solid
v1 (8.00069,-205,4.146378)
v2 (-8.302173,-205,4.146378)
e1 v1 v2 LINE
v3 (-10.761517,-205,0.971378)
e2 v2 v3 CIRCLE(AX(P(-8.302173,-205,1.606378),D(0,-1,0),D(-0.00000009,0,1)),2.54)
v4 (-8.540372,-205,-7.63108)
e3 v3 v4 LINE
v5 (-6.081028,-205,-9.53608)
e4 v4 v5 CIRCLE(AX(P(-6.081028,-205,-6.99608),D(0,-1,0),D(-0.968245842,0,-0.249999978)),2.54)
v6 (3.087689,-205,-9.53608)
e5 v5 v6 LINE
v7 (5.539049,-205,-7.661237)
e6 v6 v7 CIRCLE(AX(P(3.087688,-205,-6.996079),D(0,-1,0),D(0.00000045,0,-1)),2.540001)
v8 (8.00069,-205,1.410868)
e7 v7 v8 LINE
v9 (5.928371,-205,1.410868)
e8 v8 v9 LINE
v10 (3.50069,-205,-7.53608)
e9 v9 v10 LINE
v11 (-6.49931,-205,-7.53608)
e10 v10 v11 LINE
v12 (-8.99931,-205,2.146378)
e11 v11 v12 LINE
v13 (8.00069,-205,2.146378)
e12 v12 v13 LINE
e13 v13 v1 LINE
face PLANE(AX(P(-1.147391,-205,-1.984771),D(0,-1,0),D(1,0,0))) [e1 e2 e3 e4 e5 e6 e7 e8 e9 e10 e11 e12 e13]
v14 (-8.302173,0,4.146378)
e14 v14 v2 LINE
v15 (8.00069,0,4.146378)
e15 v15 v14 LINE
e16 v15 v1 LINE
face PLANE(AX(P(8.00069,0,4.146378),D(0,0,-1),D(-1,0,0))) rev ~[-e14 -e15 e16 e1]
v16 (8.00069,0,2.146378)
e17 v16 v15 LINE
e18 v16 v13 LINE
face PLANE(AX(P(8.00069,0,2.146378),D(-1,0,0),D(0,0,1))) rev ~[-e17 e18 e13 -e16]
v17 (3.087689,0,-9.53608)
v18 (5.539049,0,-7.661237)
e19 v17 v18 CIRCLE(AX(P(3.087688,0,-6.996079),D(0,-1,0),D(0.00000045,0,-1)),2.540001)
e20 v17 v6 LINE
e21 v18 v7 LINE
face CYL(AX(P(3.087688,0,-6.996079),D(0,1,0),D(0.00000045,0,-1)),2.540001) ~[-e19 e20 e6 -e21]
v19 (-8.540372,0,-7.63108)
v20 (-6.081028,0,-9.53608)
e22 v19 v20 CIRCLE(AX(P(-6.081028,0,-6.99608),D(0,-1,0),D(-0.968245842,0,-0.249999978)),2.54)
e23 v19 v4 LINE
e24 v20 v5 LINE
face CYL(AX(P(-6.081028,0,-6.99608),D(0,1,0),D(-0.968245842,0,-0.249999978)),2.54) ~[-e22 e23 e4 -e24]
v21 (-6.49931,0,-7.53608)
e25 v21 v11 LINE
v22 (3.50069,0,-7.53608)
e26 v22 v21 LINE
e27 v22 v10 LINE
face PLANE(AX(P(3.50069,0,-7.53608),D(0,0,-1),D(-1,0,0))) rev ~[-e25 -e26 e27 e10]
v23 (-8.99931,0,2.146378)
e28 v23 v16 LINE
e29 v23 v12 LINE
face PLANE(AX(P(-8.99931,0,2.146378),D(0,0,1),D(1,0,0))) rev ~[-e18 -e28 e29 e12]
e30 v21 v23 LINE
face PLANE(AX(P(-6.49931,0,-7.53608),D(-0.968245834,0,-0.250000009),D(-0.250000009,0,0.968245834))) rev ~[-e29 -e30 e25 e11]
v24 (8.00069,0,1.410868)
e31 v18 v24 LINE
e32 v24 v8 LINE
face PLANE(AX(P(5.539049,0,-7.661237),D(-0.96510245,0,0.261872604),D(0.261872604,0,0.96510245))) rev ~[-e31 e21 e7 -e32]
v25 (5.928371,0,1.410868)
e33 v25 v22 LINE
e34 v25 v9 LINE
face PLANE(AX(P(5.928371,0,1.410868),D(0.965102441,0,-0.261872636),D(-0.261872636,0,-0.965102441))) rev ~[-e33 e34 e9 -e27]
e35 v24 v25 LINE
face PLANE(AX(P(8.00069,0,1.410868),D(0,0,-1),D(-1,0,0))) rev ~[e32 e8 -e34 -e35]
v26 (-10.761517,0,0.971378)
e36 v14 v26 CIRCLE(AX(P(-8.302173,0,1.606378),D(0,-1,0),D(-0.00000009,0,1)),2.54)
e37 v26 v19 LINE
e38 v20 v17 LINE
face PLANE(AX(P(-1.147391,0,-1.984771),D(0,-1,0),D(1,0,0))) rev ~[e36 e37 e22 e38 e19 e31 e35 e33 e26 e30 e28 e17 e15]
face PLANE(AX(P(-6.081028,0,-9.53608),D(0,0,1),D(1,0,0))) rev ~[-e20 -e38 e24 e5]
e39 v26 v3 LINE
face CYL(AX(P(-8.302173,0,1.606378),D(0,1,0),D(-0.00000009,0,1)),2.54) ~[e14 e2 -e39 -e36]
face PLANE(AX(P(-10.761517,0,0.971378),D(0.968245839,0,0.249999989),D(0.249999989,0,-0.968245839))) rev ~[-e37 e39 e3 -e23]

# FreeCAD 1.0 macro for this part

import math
import FreeCAD as App
import Part
import Sketcher
from FreeCAD import Vector

doc = App.newDocument("Part")
body = doc.addObject("PartDesign::Body", "Body")

# Sketch on XZ plane
sketch1 = doc.addObject("Sketcher::SketchObject", "Sketch")
body.addObject(sketch1)
sketch1.AttachmentSupport = (doc.XZ_Plane, [""])
sketch1.MapMode = "FlatFace"
sketch1.addGeometry(Part.LineSegment(Vector(3.50069, -7.53608, 0), Vector(-6.49931, -7.53608, 0)), False)
sketch1.addGeometry(Part.LineSegment(Vector(-6.49931, -7.53608, 0), Vector(-8.99931, 2.146378, 0)), False)
sketch1.addGeometry(Part.LineSegment(Vector(-8.99931, 2.146378, 0), Vector(8.00069, 2.146378, 0)), False)
sketch1.addGeometry(Part.LineSegment(Vector(8.00069, 2.146378, 0), Vector(8.00069, 4.146378, 0)), False)
sketch1.addGeometry(Part.LineSegment(Vector(8.00069, 4.146378, 0), Vector(-8.302173, 4.146378, 0)), False)
sketch1.addGeometry(Part.ArcOfCircle(Part.Circle(Vector(-8.302173, 1.606378, 0), Vector(0, 0, 1), 2.54), math.radians(90.000005), math.radians(194.477517)), False)
sketch1.addGeometry(Part.LineSegment(Vector(-10.761517, 0.971378, 0), Vector(-8.540372, -7.63108, 0)), False)
sketch1.addGeometry(Part.ArcOfCircle(Part.Circle(Vector(-6.081028, -6.99608, 0), Vector(0, 0, 1), 2.54), math.radians(-165.522489), math.radians(-90.000008)), False)
sketch1.addGeometry(Part.LineSegment(Vector(-6.081028, -9.53608, 0), Vector(3.087689, -9.53608, 0)), False)
sketch1.addGeometry(Part.ArcOfCircle(Part.Circle(Vector(3.087688, -6.996079, 0), Vector(0, 0, 1), 2.540001), math.radians(-89.999974), math.radians(-15.181243)), False)
sketch1.addGeometry(Part.LineSegment(Vector(5.539049, -7.661237, 0), Vector(8.00069, 1.410868, 0)), False)
sketch1.addGeometry(Part.LineSegment(Vector(8.00069, 1.410868, 0), Vector(5.928371, 1.410868, 0)), False)
sketch1.addGeometry(Part.LineSegment(Vector(5.928371, 1.410868, 0), Vector(3.50069, -7.53608, 0)), False)
sketch1.addConstraint(Sketcher.Constraint("Coincident", 0, 2, 1, 1))
sketch1.addConstraint(Sketcher.Constraint("Coincident", 1, 2, 2, 1))
sketch1.addConstraint(Sketcher.Constraint("Coincident", 2, 2, 3, 1))
sketch1.addConstraint(Sketcher.Constraint("Coincident", 3, 2, 4, 1))
sketch1.addConstraint(Sketcher.Constraint("Tangent", 4, 2, 5, 1))
sketch1.addConstraint(Sketcher.Constraint("Tangent", 5, 2, 6, 1))
sketch1.addConstraint(Sketcher.Constraint("Tangent", 6, 2, 7, 1))
sketch1.addConstraint(Sketcher.Constraint("Tangent", 7, 2, 8, 1))
sketch1.addConstraint(Sketcher.Constraint("Tangent", 8, 2, 9, 1))
sketch1.addConstraint(Sketcher.Constraint("Tangent", 9, 2, 10, 1))
sketch1.addConstraint(Sketcher.Constraint("Coincident", 10, 2, 11, 1))
sketch1.addConstraint(Sketcher.Constraint("Coincident", 11, 2, 12, 1))
sketch1.addConstraint(Sketcher.Constraint("Coincident", 12, 2, 0, 1))
sketch1.addConstraint(Sketcher.Constraint("Horizontal", 0))
sketch1.addConstraint(Sketcher.Constraint("Horizontal", 2))
sketch1.addConstraint(Sketcher.Constraint("Vertical", 3))
sketch1.addConstraint(Sketcher.Constraint("Horizontal", 4))
sketch1.addConstraint(Sketcher.Constraint("Horizontal", 8))
sketch1.addConstraint(Sketcher.Constraint("Horizontal", 11))
sketch1.addConstraint(Sketcher.Constraint("Equal", 5, 7))
sketch1.addConstraint(Sketcher.Constraint("Equal", 7, 9))
sketch1.addConstraint(Sketcher.Constraint("Parallel", 1, 6))
sketch1.addConstraint(Sketcher.Constraint("Parallel", 10, 12))
sketch1.addConstraint(Sketcher.Constraint("Vertical", 3, 2, 10, 2))
sketch1.addConstraint(Sketcher.Constraint("DistanceX", 0, 2, 0, 1, 10.0))
sketch1.addConstraint(Sketcher.Constraint("DistanceX", 2, 1, 2, 2, 17.0))
sketch1.addConstraint(Sketcher.Constraint("DistanceY", 3, 1, 3, 2, 2.0))
sketch1.addConstraint(Sketcher.Constraint("Radius", 5, 2.54))
sketch1.addConstraint(Sketcher.Constraint("Distance", 1, 10.0))
sketch1.addConstraint(Sketcher.Constraint("DistanceY", 7, 2, 0, 2, 2.0))
sketch1.addConstraint(Sketcher.Constraint("DistanceX", 1, 2, 0, 2, 2.5))
sketch1.addConstraint(Sketcher.Constraint("DistanceX", 0, 2, 8, 2, 9.586999))
sketch1.addConstraint(Sketcher.Constraint("DistanceX", 4, 2, 4, 1, 16.302863))
sketch1.addConstraint(Sketcher.Constraint("DistanceY", -1, 1, 5, 3, 1.606378))
sketch1.addConstraint(Sketcher.Constraint("DistanceX", 0, 2, -1, 1, 6.49931))
sketch1.addConstraint(Sketcher.Constraint("DistanceX", -1, 1, 9, 2, 5.539049))
pad1 = doc.addObject("PartDesign::Pad", "Pad")
body.addObject(pad1)
pad1.Profile = sketch1
pad1.Length = 205

doc.recompute()
